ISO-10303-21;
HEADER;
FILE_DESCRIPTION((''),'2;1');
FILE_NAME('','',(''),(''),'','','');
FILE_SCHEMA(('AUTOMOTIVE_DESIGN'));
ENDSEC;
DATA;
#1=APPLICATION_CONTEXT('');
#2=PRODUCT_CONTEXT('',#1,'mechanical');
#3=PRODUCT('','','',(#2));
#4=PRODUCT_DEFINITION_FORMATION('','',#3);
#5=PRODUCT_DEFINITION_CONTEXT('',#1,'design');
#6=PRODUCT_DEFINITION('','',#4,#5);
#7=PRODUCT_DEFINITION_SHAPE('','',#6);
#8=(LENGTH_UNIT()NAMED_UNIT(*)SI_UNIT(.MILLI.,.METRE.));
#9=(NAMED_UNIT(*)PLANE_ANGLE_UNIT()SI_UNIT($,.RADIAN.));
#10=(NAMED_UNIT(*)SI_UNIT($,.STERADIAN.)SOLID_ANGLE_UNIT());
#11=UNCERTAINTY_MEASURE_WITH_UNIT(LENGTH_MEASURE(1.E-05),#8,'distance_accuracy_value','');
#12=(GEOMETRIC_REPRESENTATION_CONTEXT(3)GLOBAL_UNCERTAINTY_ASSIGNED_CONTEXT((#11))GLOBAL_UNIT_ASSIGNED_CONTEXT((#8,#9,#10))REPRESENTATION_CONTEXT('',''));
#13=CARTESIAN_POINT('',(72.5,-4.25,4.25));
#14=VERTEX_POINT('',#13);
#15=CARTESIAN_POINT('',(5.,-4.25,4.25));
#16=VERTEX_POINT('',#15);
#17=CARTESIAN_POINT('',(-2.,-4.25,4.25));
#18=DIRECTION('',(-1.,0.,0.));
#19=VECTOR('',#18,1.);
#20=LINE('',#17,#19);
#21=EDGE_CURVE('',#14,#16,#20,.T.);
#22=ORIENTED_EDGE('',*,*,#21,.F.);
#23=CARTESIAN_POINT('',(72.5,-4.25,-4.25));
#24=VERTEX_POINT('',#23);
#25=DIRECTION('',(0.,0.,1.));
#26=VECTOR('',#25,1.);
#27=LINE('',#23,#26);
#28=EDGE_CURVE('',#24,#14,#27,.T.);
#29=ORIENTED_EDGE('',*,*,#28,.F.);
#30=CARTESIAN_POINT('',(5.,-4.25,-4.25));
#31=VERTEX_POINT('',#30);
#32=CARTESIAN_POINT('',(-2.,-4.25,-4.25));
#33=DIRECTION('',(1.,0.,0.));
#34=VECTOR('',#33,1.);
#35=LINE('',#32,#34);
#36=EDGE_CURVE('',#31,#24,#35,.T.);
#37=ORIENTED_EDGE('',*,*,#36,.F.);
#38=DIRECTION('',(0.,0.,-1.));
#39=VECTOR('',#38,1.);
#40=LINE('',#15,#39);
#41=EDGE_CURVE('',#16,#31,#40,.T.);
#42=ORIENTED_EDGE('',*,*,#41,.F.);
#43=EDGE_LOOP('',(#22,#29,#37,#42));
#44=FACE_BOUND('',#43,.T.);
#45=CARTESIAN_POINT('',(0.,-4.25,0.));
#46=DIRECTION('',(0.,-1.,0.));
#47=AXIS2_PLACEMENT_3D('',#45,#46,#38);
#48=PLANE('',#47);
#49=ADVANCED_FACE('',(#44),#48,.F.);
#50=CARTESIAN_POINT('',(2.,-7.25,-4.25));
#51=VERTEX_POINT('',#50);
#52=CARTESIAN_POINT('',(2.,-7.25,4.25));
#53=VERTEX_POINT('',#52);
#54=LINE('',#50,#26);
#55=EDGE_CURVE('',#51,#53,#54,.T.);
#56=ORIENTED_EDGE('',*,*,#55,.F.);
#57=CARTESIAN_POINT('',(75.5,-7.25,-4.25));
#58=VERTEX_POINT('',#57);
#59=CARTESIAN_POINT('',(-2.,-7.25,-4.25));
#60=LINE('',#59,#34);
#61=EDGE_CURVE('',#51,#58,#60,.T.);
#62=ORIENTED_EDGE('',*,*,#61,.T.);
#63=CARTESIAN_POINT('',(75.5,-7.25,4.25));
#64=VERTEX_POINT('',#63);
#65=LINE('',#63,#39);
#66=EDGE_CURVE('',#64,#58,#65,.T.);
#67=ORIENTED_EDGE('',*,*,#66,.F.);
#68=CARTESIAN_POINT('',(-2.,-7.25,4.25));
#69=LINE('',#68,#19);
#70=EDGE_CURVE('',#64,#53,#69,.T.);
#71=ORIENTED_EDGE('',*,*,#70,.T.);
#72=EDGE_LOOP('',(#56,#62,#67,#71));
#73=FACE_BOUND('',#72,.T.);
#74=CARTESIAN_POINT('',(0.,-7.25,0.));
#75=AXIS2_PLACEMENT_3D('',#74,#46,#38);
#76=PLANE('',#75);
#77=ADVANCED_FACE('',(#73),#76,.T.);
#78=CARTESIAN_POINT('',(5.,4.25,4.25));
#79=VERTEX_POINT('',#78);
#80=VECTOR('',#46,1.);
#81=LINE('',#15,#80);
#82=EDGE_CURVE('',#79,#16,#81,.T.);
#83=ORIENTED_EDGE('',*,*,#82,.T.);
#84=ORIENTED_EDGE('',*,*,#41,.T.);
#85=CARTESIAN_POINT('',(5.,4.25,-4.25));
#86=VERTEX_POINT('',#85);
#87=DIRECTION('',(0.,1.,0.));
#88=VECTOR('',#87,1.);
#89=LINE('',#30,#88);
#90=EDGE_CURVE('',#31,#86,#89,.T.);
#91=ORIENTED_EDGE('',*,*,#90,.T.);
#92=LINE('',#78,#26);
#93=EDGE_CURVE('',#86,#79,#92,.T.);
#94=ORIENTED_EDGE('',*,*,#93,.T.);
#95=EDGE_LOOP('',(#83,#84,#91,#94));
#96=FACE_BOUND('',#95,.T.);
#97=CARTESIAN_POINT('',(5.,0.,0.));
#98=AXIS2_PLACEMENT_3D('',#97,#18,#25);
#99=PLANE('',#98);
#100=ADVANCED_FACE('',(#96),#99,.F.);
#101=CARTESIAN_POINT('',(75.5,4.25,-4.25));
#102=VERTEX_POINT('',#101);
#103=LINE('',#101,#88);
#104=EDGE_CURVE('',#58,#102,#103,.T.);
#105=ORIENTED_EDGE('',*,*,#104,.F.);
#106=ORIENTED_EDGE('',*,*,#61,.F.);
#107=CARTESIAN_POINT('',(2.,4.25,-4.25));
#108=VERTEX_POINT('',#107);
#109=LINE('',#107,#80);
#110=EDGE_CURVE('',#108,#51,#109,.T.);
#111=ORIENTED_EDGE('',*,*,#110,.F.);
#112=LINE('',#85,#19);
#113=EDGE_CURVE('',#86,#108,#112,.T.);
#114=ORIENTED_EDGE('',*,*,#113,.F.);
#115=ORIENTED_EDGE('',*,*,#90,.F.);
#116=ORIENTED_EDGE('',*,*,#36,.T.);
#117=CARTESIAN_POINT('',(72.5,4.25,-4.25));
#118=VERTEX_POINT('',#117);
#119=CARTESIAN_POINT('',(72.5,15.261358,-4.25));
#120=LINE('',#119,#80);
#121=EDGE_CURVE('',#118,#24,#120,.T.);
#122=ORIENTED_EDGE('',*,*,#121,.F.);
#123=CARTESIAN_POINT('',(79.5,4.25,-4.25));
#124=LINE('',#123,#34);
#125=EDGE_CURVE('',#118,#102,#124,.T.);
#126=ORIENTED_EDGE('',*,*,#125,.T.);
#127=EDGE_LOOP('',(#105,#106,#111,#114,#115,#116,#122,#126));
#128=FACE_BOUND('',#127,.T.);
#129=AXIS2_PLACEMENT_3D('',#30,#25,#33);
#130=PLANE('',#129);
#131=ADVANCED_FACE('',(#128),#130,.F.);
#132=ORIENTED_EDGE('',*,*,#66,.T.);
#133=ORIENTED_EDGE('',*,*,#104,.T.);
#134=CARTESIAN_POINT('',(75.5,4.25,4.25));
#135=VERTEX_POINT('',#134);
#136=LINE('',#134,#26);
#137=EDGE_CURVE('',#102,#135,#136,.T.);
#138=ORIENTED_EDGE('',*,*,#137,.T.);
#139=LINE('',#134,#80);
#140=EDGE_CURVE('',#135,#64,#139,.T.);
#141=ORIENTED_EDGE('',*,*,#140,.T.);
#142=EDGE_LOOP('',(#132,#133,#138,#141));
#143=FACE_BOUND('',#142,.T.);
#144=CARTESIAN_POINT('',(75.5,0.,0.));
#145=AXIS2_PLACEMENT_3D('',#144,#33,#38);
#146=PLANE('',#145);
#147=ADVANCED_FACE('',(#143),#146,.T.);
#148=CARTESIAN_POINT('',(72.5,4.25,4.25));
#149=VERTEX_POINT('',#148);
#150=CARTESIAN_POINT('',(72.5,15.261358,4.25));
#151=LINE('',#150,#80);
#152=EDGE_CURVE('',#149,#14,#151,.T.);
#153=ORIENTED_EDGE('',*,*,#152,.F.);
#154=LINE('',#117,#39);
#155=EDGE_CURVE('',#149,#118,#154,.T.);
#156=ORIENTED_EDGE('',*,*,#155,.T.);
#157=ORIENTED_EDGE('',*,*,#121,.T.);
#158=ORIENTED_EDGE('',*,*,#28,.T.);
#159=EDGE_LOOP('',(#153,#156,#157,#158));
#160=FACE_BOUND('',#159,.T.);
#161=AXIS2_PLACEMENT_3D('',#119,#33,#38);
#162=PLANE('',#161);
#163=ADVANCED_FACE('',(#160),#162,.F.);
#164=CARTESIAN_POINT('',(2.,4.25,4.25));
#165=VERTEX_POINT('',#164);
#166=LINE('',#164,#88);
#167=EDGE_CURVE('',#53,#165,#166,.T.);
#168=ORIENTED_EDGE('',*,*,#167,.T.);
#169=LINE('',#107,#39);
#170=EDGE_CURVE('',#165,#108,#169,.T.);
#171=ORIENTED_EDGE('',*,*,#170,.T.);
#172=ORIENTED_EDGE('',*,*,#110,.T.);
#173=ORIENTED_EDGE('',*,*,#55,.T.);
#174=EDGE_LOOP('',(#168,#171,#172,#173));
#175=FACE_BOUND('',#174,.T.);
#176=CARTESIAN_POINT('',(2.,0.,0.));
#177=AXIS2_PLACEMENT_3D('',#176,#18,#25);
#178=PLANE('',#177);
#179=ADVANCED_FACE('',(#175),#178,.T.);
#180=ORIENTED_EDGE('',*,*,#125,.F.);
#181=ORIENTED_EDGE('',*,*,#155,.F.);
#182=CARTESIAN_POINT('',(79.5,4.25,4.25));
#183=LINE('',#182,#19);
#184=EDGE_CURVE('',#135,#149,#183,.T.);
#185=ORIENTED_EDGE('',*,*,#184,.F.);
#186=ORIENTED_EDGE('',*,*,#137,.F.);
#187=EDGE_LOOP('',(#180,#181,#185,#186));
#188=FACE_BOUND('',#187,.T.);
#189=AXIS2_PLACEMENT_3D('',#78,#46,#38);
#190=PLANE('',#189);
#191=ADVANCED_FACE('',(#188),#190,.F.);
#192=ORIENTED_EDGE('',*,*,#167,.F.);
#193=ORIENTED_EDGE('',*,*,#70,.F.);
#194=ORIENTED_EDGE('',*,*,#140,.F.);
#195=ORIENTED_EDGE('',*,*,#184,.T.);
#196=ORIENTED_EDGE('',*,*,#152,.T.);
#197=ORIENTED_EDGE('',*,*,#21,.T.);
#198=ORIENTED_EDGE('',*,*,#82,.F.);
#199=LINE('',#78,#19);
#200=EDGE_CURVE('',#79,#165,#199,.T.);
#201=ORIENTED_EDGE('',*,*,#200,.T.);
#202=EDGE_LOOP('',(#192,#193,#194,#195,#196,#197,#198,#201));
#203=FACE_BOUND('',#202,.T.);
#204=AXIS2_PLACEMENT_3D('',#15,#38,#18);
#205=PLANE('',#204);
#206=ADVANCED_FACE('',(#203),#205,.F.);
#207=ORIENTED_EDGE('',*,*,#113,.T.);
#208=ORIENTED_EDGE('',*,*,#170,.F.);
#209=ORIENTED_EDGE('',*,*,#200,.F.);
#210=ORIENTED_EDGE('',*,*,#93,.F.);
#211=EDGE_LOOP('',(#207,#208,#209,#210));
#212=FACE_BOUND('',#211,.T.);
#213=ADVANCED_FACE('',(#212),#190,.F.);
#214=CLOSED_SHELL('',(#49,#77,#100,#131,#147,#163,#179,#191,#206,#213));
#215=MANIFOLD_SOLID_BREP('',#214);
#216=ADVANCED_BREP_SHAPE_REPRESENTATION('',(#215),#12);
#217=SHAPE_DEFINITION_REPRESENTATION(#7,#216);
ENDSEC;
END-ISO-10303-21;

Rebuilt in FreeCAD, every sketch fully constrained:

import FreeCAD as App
import Part
import Sketcher
Q = App.Units.Quantity

doc = App.newDocument("Part")
body = doc.addObject("PartDesign::Body", "Body")

# Sketch on YZ plane
sketch1 = doc.addObject("Sketcher::SketchObject", "Sketch")
body.addObject(sketch1)
sketch1.AttachmentSupport = (doc.YZ_Plane, [""])
sketch1.MapMode = "FlatFace"
sketch1.addGeometry([
    Part.LineSegment(App.Vector(4.2, 4.2, 0), App.Vector(-4.2, 4.2, 0)),  # 0
    Part.LineSegment(App.Vector(-4.2, 4.2, 0), App.Vector(-4.2, -4.2, 0)),  # 1
    Part.LineSegment(App.Vector(-4.2, -4.2, 0), App.Vector(4.2, -4.2, 0)),  # 2
    Part.LineSegment(App.Vector(4.2, -4.2, 0), App.Vector(4.2, 4.2, 0)),  # 3
    Part.LineSegment(App.Vector(2.8, 1.6, 0), App.Vector(2.8, -1.6, 0)),  # 4
    Part.LineSegment(App.Vector(2.8, -1.6, 0), App.Vector(0, -3.2, 0)),  # 5
    Part.LineSegment(App.Vector(0, -3.2, 0), App.Vector(-2.8, -1.6, 0)),  # 6
    Part.LineSegment(App.Vector(-2.8, -1.6, 0), App.Vector(-2.8, 1.6, 0)),  # 7
    Part.LineSegment(App.Vector(-2.8, 1.6, 0), App.Vector(0, 3.2, 0)),  # 8
    Part.LineSegment(App.Vector(0, 3.2, 0), App.Vector(2.8, 1.6, 0)),  # 9
], False)
sketch1.addConstraint([
    Sketcher.Constraint("Coincident", 0, 2, 1, 1),
    Sketcher.Constraint("Coincident", 1, 2, 2, 1),
    Sketcher.Constraint("Coincident", 2, 2, 3, 1),
    Sketcher.Constraint("Coincident", 3, 2, 0, 1),
    Sketcher.Constraint("Coincident", 4, 2, 5, 1),
    Sketcher.Constraint("Coincident", 5, 2, 6, 1),
    Sketcher.Constraint("Coincident", 6, 2, 7, 1),
    Sketcher.Constraint("Coincident", 7, 2, 8, 1),
    Sketcher.Constraint("Coincident", 8, 2, 9, 1),
    Sketcher.Constraint("Coincident", 9, 2, 4, 1),
    Sketcher.Constraint("Horizontal", 0),
    Sketcher.Constraint("Vertical", 1),
    Sketcher.Constraint("Horizontal", 2),
    Sketcher.Constraint("Vertical", 3),
    Sketcher.Constraint("Vertical", 4),
    Sketcher.Constraint("Vertical", 7),
    Sketcher.Constraint("Symmetric", 0, 2, 2, 2, -1, 1),
    Sketcher.Constraint("Symmetric", 4, 2, 7, 2, -1, 1),
    Sketcher.Constraint("Symmetric", 5, 2, 8, 2, -1, 1),
    Sketcher.Constraint("PointOnObject", 5, 2, -2),
    Sketcher.Constraint("Parallel", 6, 9),
    Sketcher.Constraint("Horizontal", 4, 2, 6, 2),
    Sketcher.Constraint("Equal", 2, 1),
    Sketcher.Constraint("Angle", 5, Q("-150 deg")),
    Sketcher.Constraint("DistanceX", 0, 2, 0, 1, 8.5),
    Sketcher.Constraint("DistanceX", 1, 2, 4, 2, 7.0),
    Sketcher.Constraint("DistanceY", 4, 2, 4, 1, 3.175426),
])
pad1 = doc.addObject("PartDesign::Pad", "Pad")
body.addObject(pad1)
pad1.Profile = sketch1
pad1.Length = 5

# Sketch on YZ plane
sketch2 = doc.addObject("Sketcher::SketchObject", "Sketch001")
body.addObject(sketch2)
sketch2.AttachmentSupport = (doc.YZ_Plane, [""])
sketch2.MapMode = "FlatFace"
sketch2.addGeometry([
    Part.LineSegment(App.Vector(4, -4, 0), App.Vector(-4, -4, 0)),
    Part.LineSegment(App.Vector(-4, -4, 0), App.Vector(-4, 4, 0)),
    Part.LineSegment(App.Vector(-4, 4, 0), App.Vector(4, 4, 0)),
    Part.LineSegment(App.Vector(4, 4, 0), App.Vector(4, -4, 0)),
], False)
sketch2.addConstraint([
    Sketcher.Constraint("Coincident", 0, 2, 1, 1),
    Sketcher.Constraint("Coincident", 1, 2, 2, 1),
    Sketcher.Constraint("Coincident", 2, 2, 3, 1),
    Sketcher.Constraint("Coincident", 3, 2, 0, 1),
    Sketcher.Constraint("Horizontal", 0),
    Sketcher.Constraint("Vertical", 1),
    Sketcher.Constraint("Horizontal", 2),
    Sketcher.Constraint("Vertical", 3),
    Sketcher.Constraint("Symmetric", 0, 2, 2, 2, -1, 1),
    Sketcher.Constraint("Equal", 2, 1),
    Sketcher.Constraint("DistanceX", 0, 2, 0, 1, 8.5),
])
pad2 = doc.addObject("PartDesign::Pad", "Pad001")
body.addObject(pad2)
pad2.Profile = sketch2
pad2.Length = 2
pad2.Reversed = True

# Sketch on YZ plane
sketch3 = doc.addObject("Sketcher::SketchObject", "Sketch002")
body.addObject(sketch3)
sketch3.AttachmentSupport = (doc.YZ_Plane, [""])
sketch3.MapMode = "FlatFace"
sketch3.addGeometry(Part.Circle(App.Vector(0, 0, 0), App.Vector(0, 0, 1), 1.5), False)
sketch3.addConstraint([
    Sketcher.Constraint("Coincident", 0, 3, -1, 1),
    Sketcher.Constraint("Diameter", 0, 3.0),
])
pocket1 = doc.addObject("PartDesign::Pocket", "Pocket")
body.addObject(pocket1)
pocket1.Profile = sketch3
pocket1.Length = 2

# Sketch on XZ plane
sketch4 = doc.addObject("Sketcher::SketchObject", "Sketch003")
body.addObject(sketch4)
sketch4.AttachmentSupport = (doc.XZ_Plane, [""])
sketch4.MapMode = "FlatFace"
sketch4.AttachmentOffset = App.Placement(App.Vector(0, 0, 4.25), App.Rotation())
sketch4.addGeometry([
    Part.LineSegment(App.Vector(-2, 4, 0), App.Vector(-2, -4, 0)),
    Part.LineSegment(App.Vector(-2, -4, 0), App.Vector(80, -4, 0)),
    Part.LineSegment(App.Vector(80, -4, 0), App.Vector(80, 4, 0)),
    Part.LineSegment(App.Vector(80, 4, 0), App.Vector(-2, 4, 0)),
], False)
sketch4.addConstraint([
    Sketcher.Constraint("Coincident", 0, 2, 1, 1),
    Sketcher.Constraint("Coincident", 1, 2, 2, 1),
    Sketcher.Constraint("Coincident", 2, 2, 3, 1),
    Sketcher.Constraint("Coincident", 3, 2, 0, 1),
    Sketcher.Constraint("Vertical", 0),
    Sketcher.Constraint("Horizontal", 1),
    Sketcher.Constraint("Vertical", 2),
    Sketcher.Constraint("Horizontal", 3),
    Sketcher.Constraint("DistanceX", 1, 1, 1, 2, 81.5),
    Sketcher.Constraint("DistanceY", 0, 2, 0, 1, 8.5),
    Sketcher.Constraint("DistanceX", 0, 2, -1, 1, 2.0),
    Sketcher.Constraint("DistanceY", 0, 2, -1, 1, 4.25),
])
pad3 = doc.addObject("PartDesign::Pad", "Pad002")
body.addObject(pad3)
pad3.Profile = sketch4
pad3.Length = 3

# Sketch on XZ plane
sketch5 = doc.addObject("Sketcher::SketchObject", "Sketch004")
body.addObject(sketch5)
sketch5.AttachmentSupport = (doc.XZ_Plane, [""])
sketch5.MapMode = "FlatFace"
sketch5.AttachmentOffset = App.Placement(App.Vector(0, 0, 4.25), App.Rotation())
sketch5.addGeometry([
    Part.LineSegment(App.Vector(72, -4, 0), App.Vector(72, 4, 0)),
    Part.LineSegment(App.Vector(72, 4, 0), App.Vector(80, 4, 0)),
    Part.LineSegment(App.Vector(80, 4, 0), App.Vector(80, -4, 0)),
    Part.LineSegment(App.Vector(80, -4, 0), App.Vector(72, -4, 0)),
], False)
sketch5.addConstraint([
    Sketcher.Constraint("Coincident", 0, 2, 1, 1),
    Sketcher.Constraint("Coincident", 1, 2, 2, 1),
    Sketcher.Constraint("Coincident", 2, 2, 3, 1),
    Sketcher.Constraint("Coincident", 3, 2, 0, 1),
    Sketcher.Constraint("Vertical", 0),
    Sketcher.Constraint("Horizontal", 1),
    Sketcher.Constraint("Vertical", 2),
    Sketcher.Constraint("Horizontal", 3),
    Sketcher.Constraint("DistanceX", 1, 1, 1, 2, 7.0),
    Sketcher.Constraint("DistanceY", 0, 1, 0, 2, 8.5),
    Sketcher.Constraint("DistanceX", -1, 1, 0, 2, 72.5),
    Sketcher.Constraint("DistanceY", -1, 1, 0, 2, 4.25),
])
pad4 = doc.addObject("PartDesign::Pad", "Pad003")
body.addObject(pad4)
pad4.Profile = sketch5
pad4.Length = 8.5
pad4.Reversed = True

# Sketch on YZ plane
sketch6 = doc.addObject("Sketcher::SketchObject", "Sketch005")
body.addObject(sketch6)
sketch6.AttachmentSupport = (doc.YZ_Plane, [""])
sketch6.MapMode = "FlatFace"
sketch6.AttachmentOffset = App.Placement(App.Vector(0, 0, 72.5), App.Rotation())
sketch6.addGeometry([
    Part.LineSegment(App.Vector(0, 3.2, 0), App.Vector(2.8, 1.6, 0)),  # 0
    Part.LineSegment(App.Vector(2.8, 1.6, 0), App.Vector(2.8, -1.6, 0)),  # 1
    Part.LineSegment(App.Vector(2.8, -1.6, 0), App.Vector(0, -3.2, 0)),  # 2
    Part.LineSegment(App.Vector(0, -3.2, 0), App.Vector(-2.8, -1.6, 0)),  # 3
    Part.LineSegment(App.Vector(-2.8, -1.6, 0), App.Vector(-2.8, 1.6, 0)),  # 4
    Part.LineSegment(App.Vector(-2.8, 1.6, 0), App.Vector(0, 3.2, 0)),  # 5
], False)
sketch6.addConstraint([
    Sketcher.Constraint("Coincident", 0, 2, 1, 1),
    Sketcher.Constraint("Coincident", 1, 2, 2, 1),
    Sketcher.Constraint("Coincident", 2, 2, 3, 1),
    Sketcher.Constraint("Coincident", 3, 2, 4, 1),
    Sketcher.Constraint("Coincident", 4, 2, 5, 1),
    Sketcher.Constraint("Coincident", 5, 2, 0, 1),
    Sketcher.Constraint("Vertical", 1),
    Sketcher.Constraint("Vertical", 4),
    Sketcher.Constraint("Symmetric", 0, 2, 3, 2, -1, 1),
    Sketcher.Constraint("Symmetric", 2, 2, 5, 2, -1, 1),
    Sketcher.Constraint("PointOnObject", 2, 2, -2),
    Sketcher.Constraint("Parallel", 2, 5),
    Sketcher.Constraint("Horizontal", 1, 2, 3, 2),
    Sketcher.Constraint("Angle", 0, Q("-30 deg")),
    Sketcher.Constraint("DistanceX", 3, 2, 1, 2, 5.5),
    Sketcher.Constraint("DistanceY", 1, 2, 1, 1, 3.175426),
])
pocket2 = doc.addObject("PartDesign::Pocket", "Pocket001")
body.addObject(pocket2)
pocket2.Profile = sketch6
pocket2.Length = 5
pocket2.Reversed = True

# Sketch on YZ plane
sketch7 = doc.addObject("Sketcher::SketchObject", "Sketch006")
body.addObject(sketch7)
sketch7.AttachmentSupport = (doc.YZ_Plane, [""])
sketch7.MapMode = "FlatFace"
sketch7.AttachmentOffset = App.Placement(App.Vector(0, 0, 77.5), App.Rotation())
sketch7.addGeometry(Part.Circle(App.Vector(0, 0, 0), App.Vector(0, 0, 1), 1.5), False)
sketch7.addConstraint([
    Sketcher.Constraint("Coincident", 0, 3, -1, 1),
    Sketcher.Constraint("Diameter", 0, 3.0),
])
pocket3 = doc.addObject("PartDesign::Pocket", "Pocket002")
body.addObject(pocket3)
pocket3.Profile = sketch7
pocket3.Length = 5
pocket3.Reversed = True

# Sketch on YZ plane
sketch8 = doc.addObject("Sketcher::SketchObject", "Sketch007")
body.addObject(sketch8)
sketch8.AttachmentSupport = (doc.YZ_Plane, [""])
sketch8.MapMode = "FlatFace"
sketch8.AttachmentOffset = App.Placement(App.Vector(0, 0, -2), App.Rotation())
sketch8.addGeometry([
    Part.LineSegment(App.Vector(2.8, 1.6, 0), App.Vector(2.8, -1.6, 0)),  # 0
    Part.LineSegment(App.Vector(2.8, -1.6, 0), App.Vector(0, -3.2, 0)),  # 1
    Part.LineSegment(App.Vector(0, -3.2, 0), App.Vector(-2.8, -1.6, 0)),  # 2
    Part.LineSegment(App.Vector(-2.8, -1.6, 0), App.Vector(-2.8, 1.6, 0)),  # 3
    Part.LineSegment(App.Vector(-2.8, 1.6, 0), App.Vector(0, 3.2, 0)),  # 4
    Part.LineSegment(App.Vector(0, 3.2, 0), App.Vector(2.8, 1.6, 0)),  # 5
], False)
sketch8.addConstraint([
    Sketcher.Constraint("Coincident", 0, 2, 1, 1),
    Sketcher.Constraint("Coincident", 1, 2, 2, 1),
    Sketcher.Constraint("Coincident", 2, 2, 3, 1),
    Sketcher.Constraint("Coincident", 3, 2, 4, 1),
    Sketcher.Constraint("Coincident", 4, 2, 5, 1),
    Sketcher.Constraint("Coincident", 5, 2, 0, 1),
    Sketcher.Constraint("Vertical", 0),
    Sketcher.Constraint("Vertical", 3),
    Sketcher.Constraint("Symmetric", 0, 2, 3, 2, -1, 1),
    Sketcher.Constraint("Symmetric", 1, 2, 4, 2, -1, 1),
    Sketcher.Constraint("PointOnObject", 1, 2, -2),
    Sketcher.Constraint("Parallel", 2, 5),
    Sketcher.Constraint("Horizontal", 0, 2, 2, 2),
    Sketcher.Constraint("Angle", 1, Q("-150 deg")),
    Sketcher.Constraint("DistanceX", 2, 2, 0, 2, 5.5),
    Sketcher.Constraint("DistanceY", 0, 2, 0, 1, 3.175426),
])
pocket4 = doc.addObject("PartDesign::Pocket", "Pocket003")
body.addObject(pocket4)
pocket4.Profile = sketch8
pocket4.Length = 10
pocket4.Reversed = True

# Sketch on YZ plane
sketch9 = doc.addObject("Sketcher::SketchObject", "Sketch008")
body.addObject(sketch9)
sketch9.AttachmentSupport = (doc.YZ_Plane, [""])
sketch9.MapMode = "FlatFace"
sketch9.AttachmentOffset = App.Placement(App.Vector(0, 0, 5), App.Rotation())
sketch9.addGeometry([
    Part.LineSegment(App.Vector(4.2, 4.2, 0), App.Vector(-4.2, 4.2, 0)),  # 0
    Part.LineSegment(App.Vector(-4.2, 4.2, 0), App.Vector(-4.2, -4.2, 0)),  # 1
    Part.LineSegment(App.Vector(-4.2, -4.2, 0), App.Vector(4.2, -4.2, 0)),  # 2
    Part.LineSegment(App.Vector(4.2, -4.2, 0), App.Vector(4.2, 4.2, 0)),  # 3
    Part.Circle(App.Vector(0, 0, 0), App.Vector(0, 0, 1), 1.5),  # 4
], False)
sketch9.addConstraint([
    Sketcher.Constraint("Coincident", 0, 2, 1, 1),
    Sketcher.Constraint("Coincident", 1, 2, 2, 1),
    Sketcher.Constraint("Coincident", 2, 2, 3, 1),
    Sketcher.Constraint("Coincident", 3, 2, 0, 1),
    Sketcher.Constraint("Horizontal", 0),
    Sketcher.Constraint("Vertical", 1),
    Sketcher.Constraint("Horizontal", 2),
    Sketcher.Constraint("Vertical", 3),
    Sketcher.Constraint("Coincident", 4, 3, -1, 1),
    Sketcher.Constraint("Symmetric", 0, 2, 2, 2, -1, 1),
    Sketcher.Constraint("Equal", 2, 1),
    Sketcher.Constraint("Diameter", 4, 3.0),
    Sketcher.Constraint("DistanceX", 0, 2, 0, 1, 8.5),
])
pad5 = doc.addObject("PartDesign::Pad", "Pad004")
body.addObject(pad5)
pad5.Profile = sketch9
pad5.Length = 2
pad5.Reversed = True

# Sketch on YZ plane
sketch10 = doc.addObject("Sketcher::SketchObject", "Sketch009")
body.addObject(sketch10)
sketch10.AttachmentSupport = (doc.YZ_Plane, [""])
sketch10.MapMode = "FlatFace"
sketch10.AttachmentOffset = App.Placement(App.Vector(0, 0, 79.5), App.Rotation())
sketch10.addGeometry([
    Part.LineSegment(App.Vector(2.8, 1.6, 0), App.Vector(0, 3.2, 0)),  # 0
    Part.LineSegment(App.Vector(0, 3.2, 0), App.Vector(-2.8, 1.6, 0)),  # 1
    Part.LineSegment(App.Vector(-2.8, 1.6, 0), App.Vector(-2.8, -1.6, 0)),  # 2
    Part.LineSegment(App.Vector(-2.8, -1.6, 0), App.Vector(0, -3.2, 0)),  # 3
    Part.LineSegment(App.Vector(0, -3.2, 0), App.Vector(2.8, -1.6, 0)),  # 4
    Part.LineSegment(App.Vector(2.8, -1.6, 0), App.Vector(2.8, 1.6, 0)),  # 5
], False)
sketch10.addConstraint([
    Sketcher.Constraint("Coincident", 0, 2, 1, 1),
    Sketcher.Constraint("Coincident", 1, 2, 2, 1),
    Sketcher.Constraint("Coincident", 2, 2, 3, 1),
    Sketcher.Constraint("Coincident", 3, 2, 4, 1),
    Sketcher.Constraint("Coincident", 4, 2, 5, 1),
    Sketcher.Constraint("Coincident", 5, 2, 0, 1),
    Sketcher.Constraint("Vertical", 2),
    Sketcher.Constraint("Vertical", 5),
    Sketcher.Constraint("Symmetric", 0, 2, 3, 2, -1, 1),
    Sketcher.Constraint("Symmetric", 1, 2, 4, 2, -1, 1),
    Sketcher.Constraint("PointOnObject", 0, 2, -2),
    Sketcher.Constraint("Parallel", 0, 3),
    Sketcher.Constraint("Horizontal", 2, 2, 4, 2),
    Sketcher.Constraint("Angle", 0, Q("150 deg")),
    Sketcher.Constraint("DistanceX", 2, 2, 4, 2, 5.5),
    Sketcher.Constraint("DistanceY", 2, 2, 2, 1, 3.175426),
])
pocket5 = doc.addObject("PartDesign::Pocket", "Pocket004")
body.addObject(pocket5)
pocket5.Profile = sketch10
pocket5.Length = 2

# Sketch on YZ plane
sketch11 = doc.addObject("Sketcher::SketchObject", "Sketch010")
body.addObject(sketch11)
sketch11.AttachmentSupport = (doc.YZ_Plane, [""])
sketch11.MapMode = "FlatFace"
sketch11.AttachmentOffset = App.Placement(App.Vector(0, 0, 72.5), App.Rotation())
sketch11.addGeometry([
    Part.LineSegment(App.Vector(4.2, -4.2, 0), App.Vector(-4.2, -4.2, 0)),  # 0
    Part.LineSegment(App.Vector(-4.2, -4.2, 0), App.Vector(-4.2, 4.2, 0)),  # 1
    Part.LineSegment(App.Vector(-4.2, 4.2, 0), App.Vector(4.2, 4.2, 0)),  # 2
    Part.LineSegment(App.Vector(4.2, 4.2, 0), App.Vector(4.2, -4.2, 0)),  # 3
    Part.Circle(App.Vector(0, 0, 0), App.Vector(0, 0, 1), 1.5),  # 4
], False)
sketch11.addConstraint([
    Sketcher.Constraint("Coincident", 0, 2, 1, 1),
    Sketcher.Constraint("Coincident", 1, 2, 2, 1),
    Sketcher.Constraint("Coincident", 2, 2, 3, 1),
    Sketcher.Constraint("Coincident", 3, 2, 0, 1),
    Sketcher.Constraint("Horizontal", 0),
    Sketcher.Constraint("Vertical", 1),
    Sketcher.Constraint("Horizontal", 2),
    Sketcher.Constraint("Vertical", 3),
    Sketcher.Constraint("Coincident", 4, 3, -1, 1),
    Sketcher.Constraint("Symmetric", 0, 2, 2, 2, -1, 1),
    Sketcher.Constraint("Equal", 2, 1),
    Sketcher.Constraint("Diameter", 4, 3.0),
    Sketcher.Constraint("DistanceX", 0, 2, 0, 1, 8.5),
])
pad6 = doc.addObject("PartDesign::Pad", "Pad005")
body.addObject(pad6)
pad6.Profile = sketch11
pad6.Length = 2

# Sketch on YZ plane
sketch12 = doc.addObject("Sketcher::SketchObject", "Sketch011")
body.addObject(sketch12)
sketch12.AttachmentSupport = (doc.YZ_Plane, [""])
sketch12.MapMode = "FlatFace"
sketch12.AttachmentOffset = App.Placement(App.Vector(0, 0, 3), App.Rotation())
sketch12.addGeometry([
    Part.LineSegment(App.Vector(2.8, -1.6, 0), App.Vector(0, -3.2, 0)),  # 0
    Part.LineSegment(App.Vector(0, -3.2, 0), App.Vector(-2.8, -1.6, 0)),  # 1
    Part.LineSegment(App.Vector(-2.8, -1.6, 0), App.Vector(-2.8, 1.6, 0)),  # 2
    Part.LineSegment(App.Vector(-2.8, 1.6, 0), App.Vector(0, 3.2, 0)),  # 3
    Part.LineSegment(App.Vector(0, 3.2, 0), App.Vector(2.8, 1.6, 0)),  # 4
    Part.LineSegment(App.Vector(2.8, 1.6, 0), App.Vector(2.8, -1.6, 0)),  # 5
], False)
sketch12.addConstraint([
    Sketcher.Constraint("Coincident", 0, 2, 1, 1),
    Sketcher.Constraint("Coincident", 1, 2, 2, 1),
    Sketcher.Constraint("Coincident", 2, 2, 3, 1),
    Sketcher.Constraint("Coincident", 3, 2, 4, 1),
    Sketcher.Constraint("Coincident", 4, 2, 5, 1),
    Sketcher.Constraint("Coincident", 5, 2, 0, 1),
    Sketcher.Constraint("Vertical", 2),
    Sketcher.Constraint("Vertical", 5),
    Sketcher.Constraint("Symmetric", 0, 2, 3, 2, -1, 1),
    Sketcher.Constraint("Symmetric", 1, 2, 4, 2, -1, 1),
    Sketcher.Constraint("PointOnObject", 0, 2, -2),
    Sketcher.Constraint("Parallel", 0, 3),
    Sketcher.Constraint("Horizontal", 2, 2, 4, 2),
    Sketcher.Constraint("Angle", 0, Q("-150 deg")),
    Sketcher.Constraint("DistanceX", 2, 2, 4, 2, 5.5),
    Sketcher.Constraint("DistanceY", 2, 1, 2, 2, 3.175426),
])
pad7 = doc.addObject("PartDesign::Pad", "Pad006")
body.addObject(pad7)
pad7.Profile = sketch12
pad7.Length = 5
pad7.Reversed = True

# Sketch on YZ plane
sketch13 = doc.addObject("Sketcher::SketchObject", "Sketch012")
body.addObject(sketch13)
sketch13.AttachmentSupport = (doc.YZ_Plane, [""])
sketch13.MapMode = "FlatFace"
sketch13.AttachmentOffset = App.Placement(App.Vector(0, 0, 74.5), App.Rotation())
sketch13.addGeometry([
    Part.LineSegment(App.Vector(2.8, 1.6, 0), App.Vector(0, 3.2, 0)),  # 0
    Part.LineSegment(App.Vector(0, 3.2, 0), App.Vector(-2.8, 1.6, 0)),  # 1
    Part.LineSegment(App.Vector(-2.8, 1.6, 0), App.Vector(-2.8, -1.6, 0)),  # 2
    Part.LineSegment(App.Vector(-2.8, -1.6, 0), App.Vector(0, -3.2, 0)),  # 3
    Part.LineSegment(App.Vector(0, -3.2, 0), App.Vector(2.8, -1.6, 0)),  # 4
    Part.LineSegment(App.Vector(2.8, -1.6, 0), App.Vector(2.8, 1.6, 0)),  # 5
], False)
sketch13.addConstraint([
    Sketcher.Constraint("Coincident", 0, 2, 1, 1),
    Sketcher.Constraint("Coincident", 1, 2, 2, 1),
    Sketcher.Constraint("Coincident", 2, 2, 3, 1),
    Sketcher.Constraint("Coincident", 3, 2, 4, 1),
    Sketcher.Constraint("Coincident", 4, 2, 5, 1),
    Sketcher.Constraint("Coincident", 5, 2, 0, 1),
    Sketcher.Constraint("Vertical", 2),
    Sketcher.Constraint("Vertical", 5),
    Sketcher.Constraint("Symmetric", 0, 2, 3, 2, -1, 1),
    Sketcher.Constraint("Symmetric", 1, 2, 4, 2, -1, 1),
    Sketcher.Constraint("PointOnObject", 0, 2, -2),
    Sketcher.Constraint("Parallel", 0, 3),
    Sketcher.Constraint("Horizontal", 2, 2, 4, 2),
    Sketcher.Constraint("Angle", 0, Q("150 deg")),
    Sketcher.Constraint("DistanceX", 2, 2, 4, 2, 5.5),
    Sketcher.Constraint("DistanceY", 2, 2, 2, 1, 3.175426),
])
pad8 = doc.addObject("PartDesign::Pad", "Pad007")
body.addObject(pad8)
pad8.Profile = sketch13
pad8.Length = 5

# Sketch on YZ plane
sketch14 = doc.addObject("Sketcher::SketchObject", "Sketch013")
body.addObject(sketch14)
sketch14.AttachmentSupport = (doc.YZ_Plane, [""])
sketch14.MapMode = "FlatFace"
sketch14.AttachmentOffset = App.Placement(App.Vector(0, 0, -2), App.Rotation())
sketch14.addGeometry([
    Part.LineSegment(App.Vector(4, -4, 0), App.Vector(-7, -4, 0)),
    Part.LineSegment(App.Vector(-7, -4, 0), App.Vector(-7, 4, 0)),
    Part.LineSegment(App.Vector(-7, 4, 0), App.Vector(4, 4, 0)),
    Part.LineSegment(App.Vector(4, 4, 0), App.Vector(4, -4, 0)),
], False)
sketch14.addConstraint([
    Sketcher.Constraint("Coincident", 0, 2, 1, 1),
    Sketcher.Constraint("Coincident", 1, 2, 2, 1),
    Sketcher.Constraint("Coincident", 2, 2, 3, 1),
    Sketcher.Constraint("Coincident", 3, 2, 0, 1),
    Sketcher.Constraint("Horizontal", 0),
    Sketcher.Constraint("Vertical", 1),
    Sketcher.Constraint("Horizontal", 2),
    Sketcher.Constraint("Vertical", 3),
    Sketcher.Constraint("DistanceX", 0, 2, 0, 1, 11.5),
    Sketcher.Constraint("DistanceY", 1, 1, 1, 2, 8.5),
    Sketcher.Constraint("DistanceX", 0, 2, -1, 1, 7.25),
    Sketcher.Constraint("DistanceY", 0, 2, -1, 1, 4.25),
])
pocket6 = doc.addObject("PartDesign::Pocket", "Pocket005")
body.addObject(pocket6)
pocket6.Profile = sketch14
pocket6.Length = 4
pocket6.Reversed = True

# Sketch on YZ plane
sketch15 = doc.addObject("Sketcher::SketchObject", "Sketch014")
body.addObject(sketch15)
sketch15.AttachmentSupport = (doc.YZ_Plane, [""])
sketch15.MapMode = "FlatFace"
sketch15.AttachmentOffset = App.Placement(App.Vector(0, 0, 79.5), App.Rotation())
sketch15.addGeometry([
    Part.LineSegment(App.Vector(4, 4, 0), App.Vector(-7, 4, 0)),
    Part.LineSegment(App.Vector(-7, 4, 0), App.Vector(-7, -4, 0)),
    Part.LineSegment(App.Vector(-7, -4, 0), App.Vector(4, -4, 0)),
    Part.LineSegment(App.Vector(4, -4, 0), App.Vector(4, 4, 0)),
], False)
sketch15.addConstraint([
    Sketcher.Constraint("Coincident", 0, 2, 1, 1),
    Sketcher.Constraint("Coincident", 1, 2, 2, 1),
    Sketcher.Constraint("Coincident", 2, 2, 3, 1),
    Sketcher.Constraint("Coincident", 3, 2, 0, 1),
    Sketcher.Constraint("Horizontal", 0),
    Sketcher.Constraint("Vertical", 1),
    Sketcher.Constraint("Horizontal", 2),
    Sketcher.Constraint("Vertical", 3),
    Sketcher.Constraint("DistanceX", 0, 2, 0, 1, 11.5),
    Sketcher.Constraint("DistanceY", 1, 2, 1, 1, 8.5),
    Sketcher.Constraint("DistanceX", 0, 2, -1, 1, 7.25),
    Sketcher.Constraint("DistanceY", -1, 1, 0, 2, 4.25),
])
pocket7 = doc.addObject("PartDesign::Pocket", "Pocket006")
body.addObject(pocket7)
pocket7.Profile = sketch15
pocket7.Length = 4

# Sketch on YZ plane
sketch16 = doc.addObject("Sketcher::SketchObject", "Sketch015")
body.addObject(sketch16)
sketch16.AttachmentSupport = (doc.YZ_Plane, [""])
sketch16.MapMode = "FlatFace"
sketch16.AttachmentOffset = App.Placement(App.Vector(0, 0, 5), App.Rotation())
sketch16.addGeometry(Part.Circle(App.Vector(0, 0, 0), App.Vector(0, 0, 1), 1.5), False)
sketch16.addConstraint([
    Sketcher.Constraint("Coincident", 0, 3, -1, 1),
    Sketcher.Constraint("Diameter", 0, 3.0),
])
pocket8 = doc.addObject("PartDesign::Pocket", "Pocket007")
body.addObject(pocket8)
pocket8.Profile = sketch16
pocket8.Length = 4

# Sketch on YZ plane
sketch17 = doc.addObject("Sketcher::SketchObject", "Sketch016")
body.addObject(sketch17)
sketch17.AttachmentSupport = (doc.YZ_Plane, [""])
sketch17.MapMode = "FlatFace"
sketch17.AttachmentOffset = App.Placement(App.Vector(0, 0, 74.5), App.Rotation())
sketch17.addGeometry(Part.Circle(App.Vector(0, 0, 0), App.Vector(0, 0, 1), 1.5), False)
sketch17.addConstraint([
    Sketcher.Constraint("Coincident", 0, 3, -1, 1),
    Sketcher.Constraint("Diameter", 0, 3.0),
])
pocket9 = doc.addObject("PartDesign::Pocket", "Pocket008")
body.addObject(pocket9)
pocket9.Profile = sketch17
pocket9.Length = 4
pocket9.Reversed = True

# Sketch on YZ plane
sketch18 = doc.addObject("Sketcher::SketchObject", "Sketch017")
body.addObject(sketch18)
sketch18.AttachmentSupport = (doc.YZ_Plane, [""])
sketch18.MapMode = "FlatFace"
sketch18.AttachmentOffset = App.Placement(App.Vector(0, 0, 5), App.Rotation())
sketch18.addGeometry([
    Part.LineSegment(App.Vector(4, 4, 0), App.Vector(-4, 4, 0)),
    Part.LineSegment(App.Vector(-4, 4, 0), App.Vector(-4, -4, 0)),
    Part.LineSegment(App.Vector(-4, -4, 0), App.Vector(4, -4, 0)),
    Part.LineSegment(App.Vector(4, -4, 0), App.Vector(4, 4, 0)),
], False)
sketch18.addConstraint([
    Sketcher.Constraint("Coincident", 0, 2, 1, 1),
    Sketcher.Constraint("Coincident", 1, 2, 2, 1),
    Sketcher.Constraint("Coincident", 2, 2, 3, 1),
    Sketcher.Constraint("Coincident", 3, 2, 0, 1),
    Sketcher.Constraint("Horizontal", 0),
    Sketcher.Constraint("Vertical", 1),
    Sketcher.Constraint("Horizontal", 2),
    Sketcher.Constraint("Vertical", 3),
    Sketcher.Constraint("Symmetric", 0, 2, 2, 2, -1, 1),
    Sketcher.Constraint("Equal", 2, 1),
    Sketcher.Constraint("DistanceX", 0, 2, 0, 1, 8.5),
])
pad9 = doc.addObject("PartDesign::Pad", "Pad008")
body.addObject(pad9)
pad9.Profile = sketch18
pad9.Length = 3
pad9.Reversed = True

# Sketch on YZ plane
sketch19 = doc.addObject("Sketcher::SketchObject", "Sketch018")
body.addObject(sketch19)
sketch19.AttachmentSupport = (doc.YZ_Plane, [""])
sketch19.MapMode = "FlatFace"
sketch19.AttachmentOffset = App.Placement(App.Vector(0, 0, 72.5), App.Rotation())
sketch19.addGeometry([
    Part.LineSegment(App.Vector(4, -4, 0), App.Vector(-4, -4, 0)),
    Part.LineSegment(App.Vector(-4, -4, 0), App.Vector(-4, 4, 0)),
    Part.LineSegment(App.Vector(-4, 4, 0), App.Vector(4, 4, 0)),
    Part.LineSegment(App.Vector(4, 4, 0), App.Vector(4, -4, 0)),
], False)
sketch19.addConstraint([
    Sketcher.Constraint("Coincident", 0, 2, 1, 1),
    Sketcher.Constraint("Coincident", 1, 2, 2, 1),
    Sketcher.Constraint("Coincident", 2, 2, 3, 1),
    Sketcher.Constraint("Coincident", 3, 2, 0, 1),
    Sketcher.Constraint("Horizontal", 0),
    Sketcher.Constraint("Vertical", 1),
    Sketcher.Constraint("Horizontal", 2),
    Sketcher.Constraint("Vertical", 3),
    Sketcher.Constraint("Symmetric", 0, 2, 2, 2, -1, 1),
    Sketcher.Constraint("Equal", 2, 1),
    Sketcher.Constraint("DistanceX", 0, 2, 0, 1, 8.5),
])
pad10 = doc.addObject("PartDesign::Pad", "Pad009")
body.addObject(pad10)
pad10.Profile = sketch19
pad10.Length = 3

doc.recompute()
